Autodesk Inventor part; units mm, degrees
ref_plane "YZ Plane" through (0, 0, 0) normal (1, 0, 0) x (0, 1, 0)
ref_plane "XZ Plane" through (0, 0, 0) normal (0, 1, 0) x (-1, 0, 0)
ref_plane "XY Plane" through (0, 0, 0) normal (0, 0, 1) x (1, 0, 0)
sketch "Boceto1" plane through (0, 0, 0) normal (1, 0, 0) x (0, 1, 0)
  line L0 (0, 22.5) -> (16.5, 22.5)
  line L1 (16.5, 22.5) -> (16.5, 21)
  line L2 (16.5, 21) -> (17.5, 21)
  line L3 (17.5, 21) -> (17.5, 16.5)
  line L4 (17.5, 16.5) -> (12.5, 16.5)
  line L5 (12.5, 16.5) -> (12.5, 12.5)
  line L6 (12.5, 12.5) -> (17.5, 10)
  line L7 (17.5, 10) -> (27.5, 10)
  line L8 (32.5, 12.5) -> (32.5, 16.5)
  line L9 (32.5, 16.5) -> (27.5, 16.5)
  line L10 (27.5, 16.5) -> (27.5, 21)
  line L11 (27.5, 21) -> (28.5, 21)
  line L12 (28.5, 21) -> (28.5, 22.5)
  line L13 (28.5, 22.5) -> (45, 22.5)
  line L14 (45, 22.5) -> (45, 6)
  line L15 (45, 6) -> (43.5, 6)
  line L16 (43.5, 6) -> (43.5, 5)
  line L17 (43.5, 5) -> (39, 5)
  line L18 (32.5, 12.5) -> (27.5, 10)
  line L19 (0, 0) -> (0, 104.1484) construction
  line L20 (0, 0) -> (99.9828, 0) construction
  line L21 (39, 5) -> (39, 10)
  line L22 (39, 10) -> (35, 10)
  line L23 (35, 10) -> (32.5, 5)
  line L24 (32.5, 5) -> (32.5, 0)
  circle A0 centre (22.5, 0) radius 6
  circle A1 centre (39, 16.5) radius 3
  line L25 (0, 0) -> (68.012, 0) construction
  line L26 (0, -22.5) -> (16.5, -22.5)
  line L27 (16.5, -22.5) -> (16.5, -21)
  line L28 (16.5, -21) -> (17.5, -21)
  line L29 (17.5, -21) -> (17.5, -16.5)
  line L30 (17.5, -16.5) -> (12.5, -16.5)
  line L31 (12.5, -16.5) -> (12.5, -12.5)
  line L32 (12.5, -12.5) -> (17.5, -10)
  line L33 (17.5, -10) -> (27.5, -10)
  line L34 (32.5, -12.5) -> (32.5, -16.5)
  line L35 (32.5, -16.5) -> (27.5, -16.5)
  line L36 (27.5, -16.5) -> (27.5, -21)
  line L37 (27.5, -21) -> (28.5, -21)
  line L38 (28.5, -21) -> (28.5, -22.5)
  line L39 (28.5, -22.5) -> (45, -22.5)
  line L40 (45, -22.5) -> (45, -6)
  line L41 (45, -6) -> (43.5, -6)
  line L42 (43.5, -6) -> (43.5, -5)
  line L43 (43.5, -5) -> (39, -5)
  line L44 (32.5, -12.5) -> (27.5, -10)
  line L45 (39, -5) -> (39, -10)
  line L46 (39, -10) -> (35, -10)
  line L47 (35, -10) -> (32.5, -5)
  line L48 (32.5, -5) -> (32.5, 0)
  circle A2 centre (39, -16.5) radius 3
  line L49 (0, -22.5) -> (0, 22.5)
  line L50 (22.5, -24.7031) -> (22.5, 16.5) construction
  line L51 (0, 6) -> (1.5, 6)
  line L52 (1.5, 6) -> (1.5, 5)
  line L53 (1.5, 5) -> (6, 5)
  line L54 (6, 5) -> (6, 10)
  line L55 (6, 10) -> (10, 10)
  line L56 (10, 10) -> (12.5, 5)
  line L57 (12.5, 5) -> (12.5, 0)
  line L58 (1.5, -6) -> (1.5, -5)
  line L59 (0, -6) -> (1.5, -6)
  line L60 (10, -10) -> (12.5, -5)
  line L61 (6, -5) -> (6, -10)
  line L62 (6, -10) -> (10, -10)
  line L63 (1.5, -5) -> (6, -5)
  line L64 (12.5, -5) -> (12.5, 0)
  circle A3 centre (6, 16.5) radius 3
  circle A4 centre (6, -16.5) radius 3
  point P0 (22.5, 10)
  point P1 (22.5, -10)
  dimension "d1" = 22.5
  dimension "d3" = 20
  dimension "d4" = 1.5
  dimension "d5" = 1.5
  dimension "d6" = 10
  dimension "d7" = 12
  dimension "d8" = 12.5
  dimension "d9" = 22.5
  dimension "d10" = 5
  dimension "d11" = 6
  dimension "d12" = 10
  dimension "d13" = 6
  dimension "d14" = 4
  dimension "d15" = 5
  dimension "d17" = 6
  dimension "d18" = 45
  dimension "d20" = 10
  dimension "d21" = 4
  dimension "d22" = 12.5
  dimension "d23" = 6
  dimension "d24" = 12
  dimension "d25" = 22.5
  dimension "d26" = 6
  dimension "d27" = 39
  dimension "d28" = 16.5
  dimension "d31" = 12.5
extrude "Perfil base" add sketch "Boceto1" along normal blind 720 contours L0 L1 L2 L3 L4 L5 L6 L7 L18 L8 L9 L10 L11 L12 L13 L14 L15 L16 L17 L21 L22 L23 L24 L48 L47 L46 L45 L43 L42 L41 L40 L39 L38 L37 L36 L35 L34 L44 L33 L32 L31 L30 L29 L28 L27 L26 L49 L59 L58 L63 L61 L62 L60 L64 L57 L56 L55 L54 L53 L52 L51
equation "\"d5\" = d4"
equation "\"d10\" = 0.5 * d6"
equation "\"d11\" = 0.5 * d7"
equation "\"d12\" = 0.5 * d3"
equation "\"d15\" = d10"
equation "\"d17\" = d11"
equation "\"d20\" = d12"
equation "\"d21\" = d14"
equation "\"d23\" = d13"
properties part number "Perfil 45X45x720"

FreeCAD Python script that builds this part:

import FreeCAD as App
import Part
import Sketcher

V = App.Vector
Q = App.Units.Quantity

doc = App.newDocument("Part")
body = doc.addObject("PartDesign::Body", "Body")

# Sketch on YZ plane
sketch1 = body.newObject("Sketcher::SketchObject", "Sketch")
sketch1.AttachmentSupport = (doc.getObject("YZ_Plane"), [""])
sketch1.MapMode = "FlatFace"
sketch1.addGeometry([
    Part.LineSegment(V(16.5, 22.5, 0), V(0, 22.5, 0)),  # 0
    Part.LineSegment(V(0, 22.5, 0), V(0, 6, 0)),  # 1
    Part.LineSegment(V(0, 6, 0), V(1.5, 6, 0)),  # 2
    Part.LineSegment(V(1.5, 6, 0), V(1.5, 5, 0)),  # 3
    Part.LineSegment(V(1.5, 5, 0), V(6, 5, 0)),  # 4
    Part.LineSegment(V(6, 5, 0), V(6, 10, 0)),  # 5
    Part.LineSegment(V(6, 10, 0), V(10, 10, 0)),  # 6
    Part.LineSegment(V(10, 10, 0), V(12.5, 5, 0)),  # 7
    Part.LineSegment(V(12.5, 5, 0), V(12.5, -5, 0)),  # 8
    Part.LineSegment(V(12.5, -5, 0), V(10, -10, 0)),  # 9
    Part.LineSegment(V(10, -10, 0), V(6, -10, 0)),  # 10
    Part.LineSegment(V(6, -10, 0), V(6, -5, 0)),  # 11
    Part.LineSegment(V(6, -5, 0), V(1.5, -5, 0)),  # 12
    Part.LineSegment(V(1.5, -5, 0), V(1.5, -6, 0)),  # 13
    Part.LineSegment(V(1.5, -6, 0), V(0, -6, 0)),  # 14
    Part.LineSegment(V(0, -6, 0), V(0, -22.5, 0)),  # 15
    Part.LineSegment(V(0, -22.5, 0), V(16.5, -22.5, 0)),  # 16
    Part.LineSegment(V(16.5, -22.5, 0), V(16.5, -21, 0)),  # 17
    Part.LineSegment(V(16.5, -21, 0), V(17.5, -21, 0)),  # 18
    Part.LineSegment(V(17.5, -21, 0), V(17.5, -16.5, 0)),  # 19
    Part.LineSegment(V(17.5, -16.5, 0), V(12.5, -16.5, 0)),  # 20
    Part.LineSegment(V(12.5, -16.5, 0), V(12.5, -12.5, 0)),  # 21
    Part.LineSegment(V(12.5, -12.5, 0), V(17.5, -10, 0)),  # 22
    Part.LineSegment(V(17.5, -10, 0), V(27.5, -10, 0)),  # 23
    Part.LineSegment(V(27.5, -10, 0), V(32.5, -12.5, 0)),  # 24
    Part.LineSegment(V(32.5, -12.5, 0), V(32.5, -16.5, 0)),  # 25
    Part.LineSegment(V(32.5, -16.5, 0), V(27.5, -16.5, 0)),  # 26
    Part.LineSegment(V(27.5, -16.5, 0), V(27.5, -21, 0)),  # 27
    Part.LineSegment(V(27.5, -21, 0), V(28.5, -21, 0)),  # 28
    Part.LineSegment(V(28.5, -21, 0), V(28.5, -22.5, 0)),  # 29
    Part.LineSegment(V(28.5, -22.5, 0), V(45, -22.5, 0)),  # 30
    Part.LineSegment(V(45, -22.5, 0), V(45, -6, 0)),  # 31
    Part.LineSegment(V(45, -6, 0), V(43.5, -6, 0)),  # 32
    Part.LineSegment(V(43.5, -6, 0), V(43.5, -5, 0)),  # 33
    Part.LineSegment(V(43.5, -5, 0), V(39, -5, 0)),  # 34
    Part.LineSegment(V(39, -5, 0), V(39, -10, 0)),  # 35
    Part.LineSegment(V(39, -10, 0), V(35, -10, 0)),  # 36
    Part.LineSegment(V(35, -10, 0), V(32.5, -5, 0)),  # 37
    Part.LineSegment(V(32.5, -5, 0), V(32.5, 5, 0)),  # 38
    Part.LineSegment(V(32.5, 5, 0), V(35, 10, 0)),  # 39
    Part.LineSegment(V(35, 10, 0), V(39, 10, 0)),  # 40
    Part.LineSegment(V(39, 10, 0), V(39, 5, 0)),  # 41
    Part.LineSegment(V(39, 5, 0), V(43.5, 5, 0)),  # 42
    Part.LineSegment(V(43.5, 5, 0), V(43.5, 6, 0)),  # 43
    Part.LineSegment(V(43.5, 6, 0), V(45, 6, 0)),  # 44
    Part.LineSegment(V(45, 6, 0), V(45, 22.5, 0)),  # 45
    Part.LineSegment(V(45, 22.5, 0), V(28.5, 22.5, 0)),  # 46
    Part.LineSegment(V(28.5, 22.5, 0), V(28.5, 21, 0)),  # 47
    Part.LineSegment(V(28.5, 21, 0), V(27.5, 21, 0)),  # 48
    Part.LineSegment(V(27.5, 21, 0), V(27.5, 16.5, 0)),  # 49
    Part.LineSegment(V(27.5, 16.5, 0), V(32.5, 16.5, 0)),  # 50
    Part.LineSegment(V(32.5, 16.5, 0), V(32.5, 12.5, 0)),  # 51
    Part.LineSegment(V(32.5, 12.5, 0), V(27.5, 10, 0)),  # 52
    Part.LineSegment(V(27.5, 10, 0), V(17.5, 10, 0)),  # 53
    Part.LineSegment(V(17.5, 10, 0), V(12.5, 12.5, 0)),  # 54
    Part.LineSegment(V(12.5, 12.5, 0), V(12.5, 16.5, 0)),  # 55
    Part.LineSegment(V(12.5, 16.5, 0), V(17.5, 16.5, 0)),  # 56
    Part.LineSegment(V(17.5, 16.5, 0), V(17.5, 21, 0)),  # 57
    Part.LineSegment(V(17.5, 21, 0), V(16.5, 21, 0)),  # 58
    Part.LineSegment(V(16.5, 21, 0), V(16.5, 22.5, 0)),  # 59
    Part.Circle(V(6, -16.5, 0), V(0, 0, 1), 3),  # 60
    Part.Circle(V(39, -16.5, 0), V(0, 0, 1), 3),  # 61
    Part.Circle(V(6, 16.5, 0), V(0, 0, 1), 3),  # 62
    Part.Circle(V(22.5, 0, 0), V(0, 0, 1), 6),  # 63
    Part.Circle(V(39, 16.5, 0), V(0, 0, 1), 3),  # 64
], False)
sketch1.addConstraint([
    Sketcher.Constraint("Coincident", 0, 2, 1, 1),
    Sketcher.Constraint("Coincident", 1, 2, 2, 1),
    Sketcher.Constraint("Coincident", 2, 2, 3, 1),
    Sketcher.Constraint("Coincident", 3, 2, 4, 1),
    Sketcher.Constraint("Coincident", 4, 2, 5, 1),
    Sketcher.Constraint("Coincident", 5, 2, 6, 1),
    Sketcher.Constraint("Coincident", 6, 2, 7, 1),
    Sketcher.Constraint("Coincident", 7, 2, 8, 1),
    Sketcher.Constraint("Coincident", 8, 2, 9, 1),
    Sketcher.Constraint("Coincident", 9, 2, 10, 1),
    Sketcher.Constraint("Coincident", 10, 2, 11, 1),
    Sketcher.Constraint("Coincident", 11, 2, 12, 1),
    Sketcher.Constraint("Coincident", 12, 2, 13, 1),
    Sketcher.Constraint("Coincident", 13, 2, 14, 1),
    Sketcher.Constraint("Coincident", 14, 2, 15, 1),
    Sketcher.Constraint("Coincident", 15, 2, 16, 1),
    Sketcher.Constraint("Coincident", 16, 2, 17, 1),
    Sketcher.Constraint("Coincident", 17, 2, 18, 1),
    Sketcher.Constraint("Coincident", 18, 2, 19, 1),
    Sketcher.Constraint("Coincident", 19, 2, 20, 1),
    Sketcher.Constraint("Coincident", 20, 2, 21, 1),
    Sketcher.Constraint("Coincident", 21, 2, 22, 1),
    Sketcher.Constraint("Coincident", 22, 2, 23, 1),
    Sketcher.Constraint("Coincident", 23, 2, 24, 1),
    Sketcher.Constraint("Coincident", 24, 2, 25, 1),
    Sketcher.Constraint("Coincident", 25, 2, 26, 1),
    Sketcher.Constraint("Coincident", 26, 2, 27, 1),
    Sketcher.Constraint("Coincident", 27, 2, 28, 1),
    Sketcher.Constraint("Coincident", 28, 2, 29, 1),
    Sketcher.Constraint("Coincident", 29, 2, 30, 1),
    Sketcher.Constraint("Coincident", 30, 2, 31, 1),
    Sketcher.Constraint("Coincident", 31, 2, 32, 1),
    Sketcher.Constraint("Coincident", 32, 2, 33, 1),
    Sketcher.Constraint("Coincident", 33, 2, 34, 1),
    Sketcher.Constraint("Coincident", 34, 2, 35, 1),
    Sketcher.Constraint("Coincident", 35, 2, 36, 1),
    Sketcher.Constraint("Coincident", 36, 2, 37, 1),
    Sketcher.Constraint("Coincident", 37, 2, 38, 1),
    Sketcher.Constraint("Coincident", 38, 2, 39, 1),
    Sketcher.Constraint("Coincident", 39, 2, 40, 1),
    Sketcher.Constraint("Coincident", 40, 2, 41, 1),
    Sketcher.Constraint("Coincident", 41, 2, 42, 1),
    Sketcher.Constraint("Coincident", 42, 2, 43, 1),
    Sketcher.Constraint("Coincident", 43, 2, 44, 1),
    Sketcher.Constraint("Coincident", 44, 2, 45, 1),
    Sketcher.Constraint("Coincident", 45, 2, 46, 1),
    Sketcher.Constraint("Coincident", 46, 2, 47, 1),
    Sketcher.Constraint("Coincident", 47, 2, 48, 1),
    Sketcher.Constraint("Coincident", 48, 2, 49, 1),
    Sketcher.Constraint("Coincident", 49, 2, 50, 1),
    Sketcher.Constraint("Coincident", 50, 2, 51, 1),
    Sketcher.Constraint("Coincident", 51, 2, 52, 1),
    Sketcher.Constraint("Coincident", 52, 2, 53, 1),
    Sketcher.Constraint("Coincident", 53, 2, 54, 1),
    Sketcher.Constraint("Coincident", 54, 2, 55, 1),
    Sketcher.Constraint("Coincident", 55, 2, 56, 1),
    Sketcher.Constraint("Coincident", 56, 2, 57, 1),
    Sketcher.Constraint("Coincident", 57, 2, 58, 1),
    Sketcher.Constraint("Coincident", 58, 2, 59, 1),
    Sketcher.Constraint("Coincident", 59, 2, 0, 1),
    Sketcher.Constraint("Horizontal", 0),
    Sketcher.Constraint("Vertical", 1),
    Sketcher.Constraint("Horizontal", 2),
    Sketcher.Constraint("Vertical", 3),
    Sketcher.Constraint("Horizontal", 4),
    Sketcher.Constraint("Vertical", 5),
    Sketcher.Constraint("Horizontal", 6),
    Sketcher.Constraint("Vertical", 8),
    Sketcher.Constraint("Horizontal", 10),
    Sketcher.Constraint("Vertical", 11),
    Sketcher.Constraint("Horizontal", 12),
    Sketcher.Constraint("Vertical", 13),
    Sketcher.Constraint("Horizontal", 14),
    Sketcher.Constraint("Vertical", 15),
    Sketcher.Constraint("Horizontal", 16),
    Sketcher.Constraint("Vertical", 17),
    Sketcher.Constraint("Horizontal", 18),
    Sketcher.Constraint("Vertical", 19),
    Sketcher.Constraint("Horizontal", 20),
    Sketcher.Constraint("Vertical", 21),
    Sketcher.Constraint("Horizontal", 23),
    Sketcher.Constraint("Vertical", 25),
    Sketcher.Constraint("Horizontal", 26),
    Sketcher.Constraint("Vertical", 27),
    Sketcher.Constraint("Horizontal", 28),
    Sketcher.Constraint("Vertical", 29),
    Sketcher.Constraint("Horizontal", 30),
    Sketcher.Constraint("Vertical", 31),
    Sketcher.Constraint("Horizontal", 32),
    Sketcher.Constraint("Vertical", 33),
    Sketcher.Constraint("Horizontal", 34),
    Sketcher.Constraint("Vertical", 35),
    Sketcher.Constraint("Horizontal", 36),
    Sketcher.Constraint("Vertical", 38),
    Sketcher.Constraint("Horizontal", 40),
    Sketcher.Constraint("Vertical", 41),
    Sketcher.Constraint("Horizontal", 42),
    Sketcher.Constraint("Vertical", 43),
    Sketcher.Constraint("Horizontal", 44),
    Sketcher.Constraint("Vertical", 45),
    Sketcher.Constraint("Horizontal", 46),
    Sketcher.Constraint("Vertical", 47),
    Sketcher.Constraint("Horizontal", 48),
    Sketcher.Constraint("Vertical", 49),
    Sketcher.Constraint("Horizontal", 50),
    Sketcher.Constraint("Vertical", 51),
    Sketcher.Constraint("Horizontal", 53),
    Sketcher.Constraint("Vertical", 55),
    Sketcher.Constraint("Horizontal", 56),
    Sketcher.Constraint("Vertical", 57),
    Sketcher.Constraint("Horizontal", 58),
    Sketcher.Constraint("Vertical", 59),
    Sketcher.Constraint("Equal", 60, 61),
    Sketcher.Constraint("Equal", 61, 62),
    Sketcher.Constraint("Equal", 62, 64),
    Sketcher.Constraint("Symmetric", 1, 2, 14, 2, -1, 1),
    Sketcher.Constraint("Symmetric", 60, 3, 62, 3, -1),
    Sketcher.Constraint("Symmetric", 61, 3, 64, 3, -1),
    Sketcher.Constraint("Symmetric", 6, 2, 9, 2, -1),
    Sketcher.Constraint("Symmetric", 4, 2, 11, 2, -1),
    Sketcher.Constraint("Symmetric", 0, 2, 15, 2, -1),
    Sketcher.Constraint("Symmetric", 36, 2, 39, 2, -1),
    Sketcher.Constraint("Symmetric", 34, 2, 41, 2, -1),
    Sketcher.Constraint("Symmetric", 32, 2, 43, 2, -1),
    Sketcher.Constraint("Symmetric", 30, 2, 45, 2, -1),
    Sketcher.Constraint("Symmetric", 28, 2, 47, 2, -1),
    Sketcher.Constraint("Symmetric", 26, 2, 49, 2, -1),
    Sketcher.Constraint("Symmetric", 24, 2, 51, 2, -1),
    Sketcher.Constraint("Symmetric", 23, 2, 52, 2, -1),
    Sketcher.Constraint("Symmetric", 21, 2, 54, 2, -1),
    Sketcher.Constraint("Symmetric", 19, 2, 56, 2, -1),
    Sketcher.Constraint("Symmetric", 17, 2, 58, 2, -1),
    Sketcher.Constraint("PointOnObject", 63, 3, -1),
    Sketcher.Constraint("Perpendicular", 7, 22),
    Sketcher.Constraint("Perpendicular", 9, 24),
    Sketcher.Constraint("Perpendicular", 22, 37),
    Sketcher.Constraint("Perpendicular", 24, 39),
    Sketcher.Constraint("Perpendicular", 37, 52),
    Sketcher.Constraint("Perpendicular", 39, 54),
    Sketcher.Constraint("Horizontal", 60, 3, 61, 3),
    Sketcher.Constraint("Horizontal", 4, 2, 7, 2),
    Sketcher.Constraint("Horizontal", 61, 3, 19, 2),
    Sketcher.Constraint("Horizontal", 10, 2, 22, 2),
    Sketcher.Constraint("Horizontal", 21, 2, 24, 2),
    Sketcher.Constraint("Horizontal", 20, 2, 25, 2),
    Sketcher.Constraint("Horizontal", 18, 2, 27, 2),
    Sketcher.Constraint("Horizontal", 16, 2, 29, 2),
    Sketcher.Constraint("Horizontal", 14, 2, 31, 2),
    Sketcher.Constraint("Horizontal", 12, 2, 33, 2),
    Sketcher.Constraint("Horizontal", 23, 2, 35, 2),
    Sketcher.Constraint("Horizontal", 34, 2, 37, 2),
    Sketcher.Constraint("Vertical", 62, 3, 4, 2),
    Sketcher.Constraint("Vertical", 3, 2, 12, 2),
    Sketcher.Constraint("Vertical", 8, 2, 20, 2),
    Sketcher.Constraint("Vertical", 19, 2, 22, 2),
    Sketcher.Constraint("Vertical", 23, 2, 26, 2),
    Sketcher.Constraint("Vertical", 64, 3, 34, 2),
    Sketcher.Constraint("Vertical", 25, 2, 37, 2),
    Sketcher.Constraint("Equal", 18, 28),
    Sketcher.Constraint("Equal", 16, 30),
    Sketcher.Constraint("Equal", 14, 32),
    Sketcher.Constraint("Equal", 12, 34),
    Sketcher.Constraint("Equal", 46, 1),
    Sketcher.Constraint("Equal", 58, 3),
    Sketcher.Constraint("Equal", 56, 5),
    Sketcher.Constraint("Equal", 53, 8),
    Sketcher.Constraint("Equal", 44, 17),
    Sketcher.Constraint("Equal", 42, 19),
    Sketcher.Constraint("Diameter", 60, Q("6 mm")),
    Sketcher.Constraint("Diameter", 63, Q("12 mm")),
    Sketcher.Constraint("DistanceX", 6, 1, 6, 2, Q("4 mm")),
    Sketcher.Constraint("DistanceX", 20, 2, 20, 1, Q("5 mm")),
    Sketcher.Constraint("DistanceX", 23, 1, 23, 2, Q("10 mm")),
    Sketcher.Constraint("DistanceX", 0, 2, 0, 1, Q("16.5 mm")),
    Sketcher.Constraint("DistanceX", 2, 1, 2, 2, Q("1.5 mm")),
    Sketcher.Constraint("DistanceX", -1, 1, 60, 3, Q("6 mm")),
    Sketcher.Constraint("DistanceX", -1, 1, 61, 3, Q("39 mm")),
    Sketcher.Constraint("DistanceX", -1, 1, 63, 3, Q("22.5 mm")),
])
pad1 = body.newObject("PartDesign::Pad", "Pad")
pad1.Profile = sketch1
pad1.Length = 720

doc.recompute()
